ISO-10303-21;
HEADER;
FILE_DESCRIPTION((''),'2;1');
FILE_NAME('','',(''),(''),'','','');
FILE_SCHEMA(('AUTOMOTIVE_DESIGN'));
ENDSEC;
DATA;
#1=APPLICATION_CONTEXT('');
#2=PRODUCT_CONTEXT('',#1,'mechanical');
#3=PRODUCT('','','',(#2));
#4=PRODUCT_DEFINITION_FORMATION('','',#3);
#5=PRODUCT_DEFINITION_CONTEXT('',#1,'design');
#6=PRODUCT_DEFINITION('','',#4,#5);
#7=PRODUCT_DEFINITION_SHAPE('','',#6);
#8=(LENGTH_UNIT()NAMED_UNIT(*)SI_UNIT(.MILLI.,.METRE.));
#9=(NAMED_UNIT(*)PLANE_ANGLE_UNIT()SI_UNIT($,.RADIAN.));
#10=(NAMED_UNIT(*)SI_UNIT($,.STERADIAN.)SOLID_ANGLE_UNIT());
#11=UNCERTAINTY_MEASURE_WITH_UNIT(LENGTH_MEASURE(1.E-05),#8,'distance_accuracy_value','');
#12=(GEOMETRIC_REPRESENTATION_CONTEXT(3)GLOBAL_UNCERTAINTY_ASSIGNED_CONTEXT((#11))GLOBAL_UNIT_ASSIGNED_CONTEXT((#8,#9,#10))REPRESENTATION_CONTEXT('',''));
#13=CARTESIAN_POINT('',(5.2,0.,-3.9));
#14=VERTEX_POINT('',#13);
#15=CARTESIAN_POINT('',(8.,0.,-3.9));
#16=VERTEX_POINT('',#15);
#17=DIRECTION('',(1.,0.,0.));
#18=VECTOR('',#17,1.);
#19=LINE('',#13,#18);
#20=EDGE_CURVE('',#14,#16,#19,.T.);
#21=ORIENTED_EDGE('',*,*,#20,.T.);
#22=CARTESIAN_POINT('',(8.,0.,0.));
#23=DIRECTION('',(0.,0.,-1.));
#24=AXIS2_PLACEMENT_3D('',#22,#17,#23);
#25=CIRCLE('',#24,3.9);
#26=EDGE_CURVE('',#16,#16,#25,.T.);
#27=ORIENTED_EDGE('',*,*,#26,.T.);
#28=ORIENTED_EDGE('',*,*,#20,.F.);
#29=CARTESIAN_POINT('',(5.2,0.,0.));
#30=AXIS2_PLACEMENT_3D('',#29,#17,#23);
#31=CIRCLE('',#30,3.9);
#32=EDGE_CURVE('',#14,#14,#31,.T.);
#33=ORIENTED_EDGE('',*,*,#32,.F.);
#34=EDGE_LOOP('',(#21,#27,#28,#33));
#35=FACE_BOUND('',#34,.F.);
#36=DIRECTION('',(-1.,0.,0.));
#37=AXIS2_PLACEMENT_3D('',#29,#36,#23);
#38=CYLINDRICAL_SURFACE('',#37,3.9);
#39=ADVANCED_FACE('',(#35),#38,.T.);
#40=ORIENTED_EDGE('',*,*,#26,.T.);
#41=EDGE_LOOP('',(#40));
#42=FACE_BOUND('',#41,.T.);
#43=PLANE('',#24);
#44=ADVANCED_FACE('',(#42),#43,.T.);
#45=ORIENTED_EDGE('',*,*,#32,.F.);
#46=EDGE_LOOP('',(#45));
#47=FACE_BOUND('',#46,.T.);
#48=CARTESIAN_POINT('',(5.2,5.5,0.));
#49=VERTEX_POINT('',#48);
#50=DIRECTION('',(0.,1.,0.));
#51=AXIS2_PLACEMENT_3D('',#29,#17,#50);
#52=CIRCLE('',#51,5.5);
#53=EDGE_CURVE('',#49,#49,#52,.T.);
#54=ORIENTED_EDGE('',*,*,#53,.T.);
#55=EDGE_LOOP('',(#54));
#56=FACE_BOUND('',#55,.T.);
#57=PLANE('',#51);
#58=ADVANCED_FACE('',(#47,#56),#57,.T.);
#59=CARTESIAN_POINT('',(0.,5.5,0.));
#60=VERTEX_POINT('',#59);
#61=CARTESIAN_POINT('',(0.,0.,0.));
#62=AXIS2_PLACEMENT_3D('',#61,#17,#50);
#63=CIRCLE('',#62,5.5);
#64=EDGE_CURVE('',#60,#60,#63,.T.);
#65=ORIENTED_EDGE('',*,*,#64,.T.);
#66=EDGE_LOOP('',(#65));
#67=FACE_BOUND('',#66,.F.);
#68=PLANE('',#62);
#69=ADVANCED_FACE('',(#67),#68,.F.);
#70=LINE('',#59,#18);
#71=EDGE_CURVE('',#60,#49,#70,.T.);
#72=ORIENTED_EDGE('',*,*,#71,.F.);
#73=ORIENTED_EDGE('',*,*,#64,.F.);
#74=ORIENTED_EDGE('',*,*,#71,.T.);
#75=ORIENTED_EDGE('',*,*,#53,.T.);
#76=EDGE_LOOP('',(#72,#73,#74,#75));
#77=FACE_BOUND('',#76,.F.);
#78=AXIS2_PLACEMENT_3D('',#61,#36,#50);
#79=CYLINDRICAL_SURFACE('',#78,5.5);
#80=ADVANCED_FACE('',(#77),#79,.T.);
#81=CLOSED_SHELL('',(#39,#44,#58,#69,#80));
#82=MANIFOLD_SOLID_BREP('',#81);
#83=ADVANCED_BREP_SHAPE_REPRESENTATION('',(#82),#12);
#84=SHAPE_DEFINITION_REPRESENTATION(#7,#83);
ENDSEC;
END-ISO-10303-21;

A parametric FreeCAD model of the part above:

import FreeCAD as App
import Part
import Sketcher
from FreeCAD import Vector

doc = App.newDocument("Part")
body = doc.addObject("PartDesign::Body", "Body")

sketch1 = body.newObject("Sketcher::SketchObject", "Sketch")
sketch1.AttachmentSupport = (doc.getObject("YZ_Plane"), [""])
sketch1.MapMode = "FlatFace"
sketch1.addGeometry(Part.Circle(Vector(0, 0, 0), Vector(0, 0, 1), 6), False)
sketch1.addConstraint([
    Sketcher.Constraint("Coincident", 0, 3, -1, 1),
    Sketcher.Constraint("Diameter", 0, 11.0),
])
pad1 = body.newObject("PartDesign::Pad", "Pad")
pad1.Profile = sketch1
pad1.Length = 5.2

sketch2 = body.newObject("Sketcher::SketchObject", "Sketch001")
sketch2.AttachmentSupport = (doc.getObject("YZ_Plane"), [""])
sketch2.MapMode = "FlatFace"
sketch2.AttachmentOffset = App.Placement(Vector(0, 0, 5.2), App.Rotation())
sketch2.addGeometry(Part.Circle(Vector(0, 0, 0), Vector(0, 0, 1), 3.9), False)
sketch2.addConstraint([
    Sketcher.Constraint("Coincident", 0, 3, -1, 1),
    Sketcher.Constraint("Diameter", 0, 7.8),
])
pad2 = body.newObject("PartDesign::Pad", "Pad001")
pad2.Profile = sketch2
pad2.Length = 2.8

doc.recompute()
